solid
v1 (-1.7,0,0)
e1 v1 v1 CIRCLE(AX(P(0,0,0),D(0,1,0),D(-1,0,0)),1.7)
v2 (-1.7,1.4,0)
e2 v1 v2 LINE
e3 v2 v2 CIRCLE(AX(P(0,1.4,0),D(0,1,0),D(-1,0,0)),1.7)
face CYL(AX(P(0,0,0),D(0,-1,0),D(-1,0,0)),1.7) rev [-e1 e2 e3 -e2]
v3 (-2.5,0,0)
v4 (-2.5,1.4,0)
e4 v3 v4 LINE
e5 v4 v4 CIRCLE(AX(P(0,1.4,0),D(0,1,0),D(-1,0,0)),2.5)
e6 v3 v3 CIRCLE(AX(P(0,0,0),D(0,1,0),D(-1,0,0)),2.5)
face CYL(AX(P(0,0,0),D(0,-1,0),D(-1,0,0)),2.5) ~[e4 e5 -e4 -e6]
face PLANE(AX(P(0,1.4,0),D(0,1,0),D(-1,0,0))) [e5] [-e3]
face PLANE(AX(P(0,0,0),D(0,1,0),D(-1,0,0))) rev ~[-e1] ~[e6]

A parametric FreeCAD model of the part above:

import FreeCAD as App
import Part
import Sketcher
Q = App.Units.Quantity

doc = App.newDocument("Part")
params = doc.addObject("Spreadsheet::Sheet", "Params")
for row, (alias, value) in enumerate([
    ("sketch1_diameter", "3.4 mm"),
    ("sketch1_diameter2", "5 mm"),
    ("pad1_length", "1.4 mm"),
], start=1):
    params.set(f"A{row}", alias)
    params.set(f"B{row}", "=" + value)
    params.setAlias(f"B{row}", alias)

body = doc.addObject("PartDesign::Body", "Body")

# Sketch on XZ plane
sketch1 = body.newObject("Sketcher::SketchObject", "Sketch")
sketch1.AttachmentSupport = (doc.getObject("XZ_Plane"), [""])
sketch1.MapMode = "FlatFace"
sketch1.addGeometry([
    Part.Circle(App.Vector(0, 0, 0), App.Vector(0, 0, 1), 2.5),
    Part.Circle(App.Vector(0, 0, 0), App.Vector(0, 0, 1), 1.7),
], False)
sketch1.addConstraint([
    Sketcher.Constraint("Coincident", 0, 3, -1, 1),
    Sketcher.Constraint("Coincident", 1, 3, -1, 1),
    Sketcher.Constraint("Diameter", 1, Q("3.4 mm")),
    Sketcher.Constraint("Diameter", 0, Q("5 mm")),
])
sketch1.setExpression("Constraints[2]", "Params.sketch1_diameter")
sketch1.setExpression("Constraints[3]", "Params.sketch1_diameter2")
pad1 = body.newObject("PartDesign::Pad", "Pad")
pad1.Profile = sketch1
pad1.setExpression("Length", "Params.pad1_length")
pad1.Reversed = True

doc.recompute()
